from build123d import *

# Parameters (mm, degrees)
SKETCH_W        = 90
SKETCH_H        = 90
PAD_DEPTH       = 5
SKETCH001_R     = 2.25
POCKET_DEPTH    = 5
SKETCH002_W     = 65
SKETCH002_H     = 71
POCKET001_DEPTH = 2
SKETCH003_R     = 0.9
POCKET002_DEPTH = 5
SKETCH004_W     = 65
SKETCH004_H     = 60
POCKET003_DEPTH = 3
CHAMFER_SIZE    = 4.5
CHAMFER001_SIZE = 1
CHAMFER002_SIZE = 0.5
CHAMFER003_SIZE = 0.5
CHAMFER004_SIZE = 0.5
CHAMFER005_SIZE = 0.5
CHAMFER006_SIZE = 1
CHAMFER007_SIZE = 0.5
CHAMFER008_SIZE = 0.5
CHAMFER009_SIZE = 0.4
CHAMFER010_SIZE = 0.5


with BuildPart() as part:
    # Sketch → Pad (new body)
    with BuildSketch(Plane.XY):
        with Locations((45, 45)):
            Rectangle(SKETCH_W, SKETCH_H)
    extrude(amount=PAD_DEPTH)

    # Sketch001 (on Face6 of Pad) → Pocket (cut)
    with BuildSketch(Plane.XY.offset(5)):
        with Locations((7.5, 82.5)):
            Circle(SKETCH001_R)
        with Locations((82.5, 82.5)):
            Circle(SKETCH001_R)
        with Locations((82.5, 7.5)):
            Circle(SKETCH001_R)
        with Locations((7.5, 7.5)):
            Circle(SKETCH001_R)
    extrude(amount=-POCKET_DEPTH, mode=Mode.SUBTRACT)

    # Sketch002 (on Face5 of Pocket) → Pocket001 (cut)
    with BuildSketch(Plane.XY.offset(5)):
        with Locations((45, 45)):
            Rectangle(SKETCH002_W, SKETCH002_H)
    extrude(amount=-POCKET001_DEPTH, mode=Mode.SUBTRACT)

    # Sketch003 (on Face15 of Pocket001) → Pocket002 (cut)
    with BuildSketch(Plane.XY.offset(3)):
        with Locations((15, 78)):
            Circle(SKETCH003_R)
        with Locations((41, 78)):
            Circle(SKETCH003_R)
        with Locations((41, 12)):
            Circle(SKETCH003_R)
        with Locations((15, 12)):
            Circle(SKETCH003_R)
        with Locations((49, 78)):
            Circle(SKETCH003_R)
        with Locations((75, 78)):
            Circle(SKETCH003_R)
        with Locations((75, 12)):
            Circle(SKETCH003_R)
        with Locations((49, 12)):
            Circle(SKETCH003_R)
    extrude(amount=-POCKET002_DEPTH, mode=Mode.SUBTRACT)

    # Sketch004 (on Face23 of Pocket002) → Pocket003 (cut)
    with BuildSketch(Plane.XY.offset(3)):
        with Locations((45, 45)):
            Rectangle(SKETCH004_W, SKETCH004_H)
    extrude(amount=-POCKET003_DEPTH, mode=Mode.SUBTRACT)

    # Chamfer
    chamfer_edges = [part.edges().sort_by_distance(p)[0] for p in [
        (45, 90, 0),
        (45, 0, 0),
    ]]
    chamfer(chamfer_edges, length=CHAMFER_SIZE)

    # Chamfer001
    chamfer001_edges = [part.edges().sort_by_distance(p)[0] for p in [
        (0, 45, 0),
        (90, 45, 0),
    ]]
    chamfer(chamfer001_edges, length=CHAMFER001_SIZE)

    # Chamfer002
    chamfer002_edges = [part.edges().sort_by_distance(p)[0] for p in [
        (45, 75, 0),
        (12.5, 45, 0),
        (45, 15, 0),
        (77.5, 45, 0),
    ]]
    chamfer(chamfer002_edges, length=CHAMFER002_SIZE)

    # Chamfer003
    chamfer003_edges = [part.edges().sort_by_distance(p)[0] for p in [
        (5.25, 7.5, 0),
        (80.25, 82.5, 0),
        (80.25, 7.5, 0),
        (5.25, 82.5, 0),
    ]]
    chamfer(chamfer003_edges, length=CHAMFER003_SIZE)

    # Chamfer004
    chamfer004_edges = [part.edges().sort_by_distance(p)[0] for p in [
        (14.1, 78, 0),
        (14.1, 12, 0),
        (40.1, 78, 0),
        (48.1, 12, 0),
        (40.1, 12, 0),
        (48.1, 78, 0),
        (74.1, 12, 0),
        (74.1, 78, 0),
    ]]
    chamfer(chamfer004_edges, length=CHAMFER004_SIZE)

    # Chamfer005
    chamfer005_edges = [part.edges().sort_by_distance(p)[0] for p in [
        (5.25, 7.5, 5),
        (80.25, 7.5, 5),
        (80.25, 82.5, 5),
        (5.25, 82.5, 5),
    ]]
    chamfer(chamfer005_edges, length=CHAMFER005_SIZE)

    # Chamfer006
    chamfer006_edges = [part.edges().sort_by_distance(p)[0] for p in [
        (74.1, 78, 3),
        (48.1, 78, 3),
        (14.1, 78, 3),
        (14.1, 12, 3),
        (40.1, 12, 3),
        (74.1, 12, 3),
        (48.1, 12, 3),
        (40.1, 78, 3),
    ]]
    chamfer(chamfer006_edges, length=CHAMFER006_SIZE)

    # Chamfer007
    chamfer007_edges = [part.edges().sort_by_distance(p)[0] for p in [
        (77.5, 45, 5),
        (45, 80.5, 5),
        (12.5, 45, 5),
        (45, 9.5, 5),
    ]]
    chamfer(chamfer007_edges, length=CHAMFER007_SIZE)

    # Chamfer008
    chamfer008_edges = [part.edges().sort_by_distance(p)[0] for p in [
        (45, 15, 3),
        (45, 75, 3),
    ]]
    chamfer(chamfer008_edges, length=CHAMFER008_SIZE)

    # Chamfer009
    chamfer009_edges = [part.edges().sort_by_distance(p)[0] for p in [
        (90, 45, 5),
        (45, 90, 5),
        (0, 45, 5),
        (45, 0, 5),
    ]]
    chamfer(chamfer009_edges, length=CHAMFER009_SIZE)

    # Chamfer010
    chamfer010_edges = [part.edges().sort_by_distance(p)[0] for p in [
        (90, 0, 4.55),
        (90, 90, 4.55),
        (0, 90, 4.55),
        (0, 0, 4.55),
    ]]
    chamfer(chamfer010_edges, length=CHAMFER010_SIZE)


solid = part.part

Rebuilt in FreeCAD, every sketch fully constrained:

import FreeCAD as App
import Part
import Sketcher


def edges_at(feature, points):
    """Names of the edges that pass closest to the given points."""
    edges = feature.Shape.Edges
    near = lambda p: min(range(len(edges)), key=lambda i: edges[i].distToShape(Part.Vertex(*p))[0])
    return sorted({f"Edge{near(p) + 1}" for p in points})

doc = App.newDocument("Part")
params = doc.addObject("Spreadsheet::Sheet", "Params")
for row, (alias, value) in enumerate([
    ("sketch1_width", "90 mm"),
    ("pad1_length", "5 mm"),
    ("sketch2_diameter", "4.5 mm"),
    ("pocket1_length", "5 mm"),
    ("sketch3_width", "65 mm"),
    ("sketch3_height", "71 mm"),
    ("pocket2_length", "2 mm"),
    ("sketch4_diameter", "1.8 mm"),
    ("pocket3_length", "5 mm"),
    ("sketch5_width", "65 mm"),
    ("sketch5_height", "60 mm"),
    ("pocket4_length", "3 mm"),
    ("chamfer_size", "4.5 mm"),
    ("chamfer2_size", "1 mm"),
    ("chamfer3_size", "0.5 mm"),
    ("chamfer4_size", "0.5 mm"),
    ("chamfer5_size", "0.5 mm"),
    ("chamfer6_size", "0.5 mm"),
    ("chamfer7_size", "1 mm"),
    ("chamfer8_size", "0.5 mm"),
    ("chamfer9_size", "0.5 mm"),
    ("chamfer10_size", "0.4 mm"),
    ("chamfer11_size", "0.5 mm"),
], start=1):
    params.set(f"A{row}", alias)
    params.set(f"B{row}", "=" + value)
    params.setAlias(f"B{row}", alias)

body = doc.addObject("PartDesign::Body", "Body")

sketch1 = body.newObject("Sketcher::SketchObject", "Sketch")
sketch1.AttachmentSupport = (doc.getObject("XY_Plane"), [""])
sketch1.MapMode = "FlatFace"
sketch1.addGeometry([
    Part.LineSegment(App.Vector(0, 90, 0), App.Vector(0, 0, 0)),
    Part.LineSegment(App.Vector(0, 0, 0), App.Vector(90, 0, 0)),
    Part.LineSegment(App.Vector(90, 0, 0), App.Vector(90, 90, 0)),
    Part.LineSegment(App.Vector(90, 90, 0), App.Vector(0, 90, 0)),
], False)
sketch1.addConstraint([
    Sketcher.Constraint("Coincident", 0, 2, 1, 1),
    Sketcher.Constraint("Coincident", 1, 2, 2, 1),
    Sketcher.Constraint("Coincident", 2, 2, 3, 1),
    Sketcher.Constraint("Coincident", 3, 2, 0, 1),
    Sketcher.Constraint("Vertical", 0),
    Sketcher.Constraint("Horizontal", 1),
    Sketcher.Constraint("Vertical", 2),
    Sketcher.Constraint("Horizontal", 3),
    Sketcher.Constraint("Coincident", 0, 2, -1, 1),
    Sketcher.Constraint("Equal", 3, 0),
    Sketcher.Constraint("DistanceX", 1, 1, 1, 2, 90.0),
])
sketch1.setExpression("Constraints[10]", "Params.sketch1_width")
pad1 = body.newObject("PartDesign::Pad", "Pad")
pad1.Profile = sketch1
pad1.setExpression("Length", "Params.pad1_length")

sketch2 = body.newObject("Sketcher::SketchObject", "Sketch001")
sketch2.AttachmentSupport = (doc.getObject("XY_Plane"), [""])
sketch2.MapMode = "FlatFace"
sketch2.AttachmentOffset = App.Placement(App.Vector(0, 0, 5), App.Rotation())
sketch2.addGeometry([
    Part.Circle(App.Vector(7.5, 82.5, 0), App.Vector(0, 0, 1), 2.25),
    Part.Circle(App.Vector(82.5, 82.5, 0), App.Vector(0, 0, 1), 2.25),
    Part.Circle(App.Vector(82.5, 7.5, 0), App.Vector(0, 0, 1), 2.25),
    Part.Circle(App.Vector(7.5, 7.5, 0), App.Vector(0, 0, 1), 2.25),
], False)
sketch2.addConstraint([
    Sketcher.Constraint("Equal", 0, 1),
    Sketcher.Constraint("Equal", 1, 2),
    Sketcher.Constraint("Equal", 2, 3),
    Sketcher.Constraint("Horizontal", 0, 3, 1, 3),
    Sketcher.Constraint("Horizontal", 2, 3, 3, 3),
    Sketcher.Constraint("Vertical", 1, 3, 2, 3),
    Sketcher.Constraint("Vertical", 0, 3, 3, 3),
    Sketcher.Constraint("Diameter", 0, 4.5),
    Sketcher.Constraint("DistanceX", 0, 3, 1, 3, 75.0),
    Sketcher.Constraint("DistanceY", 2, 3, 1, 3, 75.0),
    Sketcher.Constraint("DistanceX", -1, 1, 0, 3, 7.5),
    Sketcher.Constraint("DistanceY", -1, 1, 0, 3, 82.5),
])
sketch2.setExpression("Constraints[7]", "Params.sketch2_diameter")
pocket1 = body.newObject("PartDesign::Pocket", "Pocket")
pocket1.Profile = sketch2
pocket1.setExpression("Length", "Params.pocket1_length")

sketch3 = body.newObject("Sketcher::SketchObject", "Sketch002")
sketch3.AttachmentSupport = (doc.getObject("XY_Plane"), [""])
sketch3.MapMode = "FlatFace"
sketch3.AttachmentOffset = App.Placement(App.Vector(0, 0, 5), App.Rotation())
sketch3.addGeometry([
    Part.LineSegment(App.Vector(12.5, 80.5, 0), App.Vector(12.5, 9.5, 0)),
    Part.LineSegment(App.Vector(12.5, 9.5, 0), App.Vector(77.5, 9.5, 0)),
    Part.LineSegment(App.Vector(77.5, 9.5, 0), App.Vector(77.5, 80.5, 0)),
    Part.LineSegment(App.Vector(77.5, 80.5, 0), App.Vector(12.5, 80.5, 0)),
], False)
sketch3.addConstraint([
    Sketcher.Constraint("Coincident", 0, 2, 1, 1),
    Sketcher.Constraint("Coincident", 1, 2, 2, 1),
    Sketcher.Constraint("Coincident", 2, 2, 3, 1),
    Sketcher.Constraint("Coincident", 3, 2, 0, 1),
    Sketcher.Constraint("Vertical", 0),
    Sketcher.Constraint("Horizontal", 1),
    Sketcher.Constraint("Vertical", 2),
    Sketcher.Constraint("Horizontal", 3),
    Sketcher.Constraint("DistanceX", 1, 1, 1, 2, 65.0),
    Sketcher.Constraint("DistanceY", 0, 2, 0, 1, 71.0),
    Sketcher.Constraint("DistanceX", -1, 1, 0, 2, 12.5),
    Sketcher.Constraint("DistanceY", -1, 1, 0, 2, 9.5),
])
sketch3.setExpression("Constraints[8]", "Params.sketch3_width")
sketch3.setExpression("Constraints[9]", "Params.sketch3_height")
pocket2 = body.newObject("PartDesign::Pocket", "Pocket001")
pocket2.Profile = sketch3
pocket2.setExpression("Length", "Params.pocket2_length")

sketch4 = body.newObject("Sketcher::SketchObject", "Sketch003")
sketch4.AttachmentSupport = (doc.getObject("XY_Plane"), [""])
sketch4.MapMode = "FlatFace"
sketch4.AttachmentOffset = App.Placement(App.Vector(0, 0, 3), App.Rotation())
sketch4.addGeometry([
    Part.Circle(App.Vector(15, 78, 0), App.Vector(0, 0, 1), 0.9),
    Part.Circle(App.Vector(41, 78, 0), App.Vector(0, 0, 1), 0.9),
    Part.Circle(App.Vector(41, 12, 0), App.Vector(0, 0, 1), 0.9),
    Part.Circle(App.Vector(15, 12, 0), App.Vector(0, 0, 1), 0.9),
    Part.Circle(App.Vector(49, 78, 0), App.Vector(0, 0, 1), 0.9),
    Part.Circle(App.Vector(75, 78, 0), App.Vector(0, 0, 1), 0.9),
    Part.Circle(App.Vector(75, 12, 0), App.Vector(0, 0, 1), 0.9),
    Part.Circle(App.Vector(49, 12, 0), App.Vector(0, 0, 1), 0.9),
], False)
sketch4.addConstraint([
    Sketcher.Constraint("Equal", 0, 1),
    Sketcher.Constraint("Equal", 1, 2),
    Sketcher.Constraint("Equal", 2, 3),
    Sketcher.Constraint("Equal", 3, 4),
    Sketcher.Constraint("Equal", 4, 5),
    Sketcher.Constraint("Equal", 5, 6),
    Sketcher.Constraint("Equal", 6, 7),
    Sketcher.Constraint("Horizontal", 0, 3, 1, 3),
    Sketcher.Constraint("Horizontal", 2, 3, 3, 3),
    Sketcher.Constraint("Horizontal", 1, 3, 4, 3),
    Sketcher.Constraint("Horizontal", 4, 3, 5, 3),
    Sketcher.Constraint("Horizontal", 3, 3, 6, 3),
    Sketcher.Constraint("Horizontal", 6, 3, 7, 3),
    Sketcher.Constraint("Vertical", 1, 3, 2, 3),
    Sketcher.Constraint("Vertical", 0, 3, 3, 3),
    Sketcher.Constraint("Vertical", 5, 3, 6, 3),
    Sketcher.Constraint("Vertical", 4, 3, 7, 3),
    Sketcher.Constraint("Diameter", 0, 1.8),
    Sketcher.Constraint("DistanceX", -1, 1, 0, 3, 15.0),
    Sketcher.Constraint("DistanceY", -1, 1, 0, 3, 78.0),
    Sketcher.Constraint("DistanceX", -1, 1, 1, 3, 41.0),
    Sketcher.Constraint("DistanceY", -1, 1, 2, 3, 12.0),
    Sketcher.Constraint("DistanceX", -1, 1, 4, 3, 49.0),
    Sketcher.Constraint("DistanceX", -1, 1, 5, 3, 75.0),
])
sketch4.setExpression("Constraints[17]", "Params.sketch4_diameter")
pocket3 = body.newObject("PartDesign::Pocket", "Pocket002")
pocket3.Profile = sketch4
pocket3.setExpression("Length", "Params.pocket3_length")

sketch5 = body.newObject("Sketcher::SketchObject", "Sketch004")
sketch5.AttachmentSupport = (doc.getObject("XY_Plane"), [""])
sketch5.MapMode = "FlatFace"
sketch5.AttachmentOffset = App.Placement(App.Vector(0, 0, 3), App.Rotation())
sketch5.addGeometry([
    Part.LineSegment(App.Vector(12.5, 75, 0), App.Vector(12.5, 15, 0)),
    Part.LineSegment(App.Vector(12.5, 15, 0), App.Vector(77.5, 15, 0)),
    Part.LineSegment(App.Vector(77.5, 15, 0), App.Vector(77.5, 75, 0)),
    Part.LineSegment(App.Vector(77.5, 75, 0), App.Vector(12.5, 75, 0)),
], False)
sketch5.addConstraint([
    Sketcher.Constraint("Coincident", 0, 2, 1, 1),
    Sketcher.Constraint("Coincident", 1, 2, 2, 1),
    Sketcher.Constraint("Coincident", 2, 2, 3, 1),
    Sketcher.Constraint("Coincident", 3, 2, 0, 1),
    Sketcher.Constraint("Vertical", 0),
    Sketcher.Constraint("Horizontal", 1),
    Sketcher.Constraint("Vertical", 2),
    Sketcher.Constraint("Horizontal", 3),
    Sketcher.Constraint("DistanceX", 1, 1, 1, 2, 65.0),
    Sketcher.Constraint("DistanceY", 0, 2, 0, 1, 60.0),
    Sketcher.Constraint("DistanceY", -1, 1, 0, 2, 15.0),
    Sketcher.Constraint("DistanceX", -1, 1, 0, 2, 12.5),
])
sketch5.setExpression("Constraints[8]", "Params.sketch5_width")
sketch5.setExpression("Constraints[9]", "Params.sketch5_height")
pocket4 = body.newObject("PartDesign::Pocket", "Pocket003")
pocket4.Profile = sketch5
pocket4.setExpression("Length", "Params.pocket4_length")
doc.recompute()

chamfer = body.newObject("PartDesign::Chamfer", "Chamfer")
chamfer.Base = (pocket4, edges_at(pocket4, [(45, 90, 0), (45, 0, 0)]))
chamfer.setExpression("Size", "Params.chamfer_size")
doc.recompute()

chamfer2 = body.newObject("PartDesign::Chamfer", "Chamfer001")
chamfer2.Base = (chamfer, edges_at(chamfer, [(0, 45, 0), (90, 45, 0)]))
chamfer2.setExpression("Size", "Params.chamfer2_size")
doc.recompute()

chamfer3 = body.newObject("PartDesign::Chamfer", "Chamfer002")
chamfer3.Base = (chamfer2, edges_at(chamfer2, [
    (45, 75, 0),
    (12.5, 45, 0),
    (45, 15, 0),
    (77.5, 45, 0),
]))
chamfer3.setExpression("Size", "Params.chamfer3_size")
doc.recompute()

chamfer4 = body.newObject("PartDesign::Chamfer", "Chamfer003")
chamfer4.Base = (chamfer3, edges_at(chamfer3, [
    (5.25, 7.5, 0),
    (80.25, 82.5, 0),
    (80.25, 7.5, 0),
    (5.25, 82.5, 0),
]))
chamfer4.setExpression("Size", "Params.chamfer4_size")
doc.recompute()

chamfer5 = body.newObject("PartDesign::Chamfer", "Chamfer004")
chamfer5.Base = (chamfer4, edges_at(chamfer4, [
    (14.1, 78, 0),
    (14.1, 12, 0),
    (40.1, 78, 0),
    (48.1, 12, 0),
    (40.1, 12, 0),
    (48.1, 78, 0),
    (74.1, 12, 0),
    (74.1, 78, 0),
]))
chamfer5.setExpression("Size", "Params.chamfer5_size")
doc.recompute()

chamfer6 = body.newObject("PartDesign::Chamfer", "Chamfer005")
chamfer6.Base = (chamfer5, edges_at(chamfer5, [
    (5.25, 7.5, 5),
    (80.25, 7.5, 5),
    (80.25, 82.5, 5),
    (5.25, 82.5, 5),
]))
chamfer6.setExpression("Size", "Params.chamfer6_size")
doc.recompute()

chamfer7 = body.newObject("PartDesign::Chamfer", "Chamfer006")
chamfer7.Base = (chamfer6, edges_at(chamfer6, [
    (74.1, 78, 3),
    (48.1, 78, 3),
    (14.1, 78, 3),
    (14.1, 12, 3),
    (40.1, 12, 3),
    (74.1, 12, 3),
    (48.1, 12, 3),
    (40.1, 78, 3),
]))
chamfer7.setExpression("Size", "Params.chamfer7_size")
doc.recompute()

chamfer8 = body.newObject("PartDesign::Chamfer", "Chamfer007")
chamfer8.Base = (chamfer7, edges_at(chamfer7, [
    (77.5, 45, 5),
    (45, 80.5, 5),
    (12.5, 45, 5),
    (45, 9.5, 5),
]))
chamfer8.setExpression("Size", "Params.chamfer8_size")
doc.recompute()

chamfer9 = body.newObject("PartDesign::Chamfer", "Chamfer008")
chamfer9.Base = (chamfer8, edges_at(chamfer8, [(45, 15, 3), (45, 75, 3)]))
chamfer9.setExpression("Size", "Params.chamfer9_size")
doc.recompute()

chamfer10 = body.newObject("PartDesign::Chamfer", "Chamfer009")
chamfer10.Base = (chamfer9, edges_at(chamfer9, [
    (90, 45, 5),
    (45, 90, 5),
    (0, 45, 5),
    (45, 0, 5),
]))
chamfer10.setExpression("Size", "Params.chamfer10_size")
doc.recompute()

chamfer11 = body.newObject("PartDesign::Chamfer", "Chamfer010")
chamfer11.Base = (chamfer10, edges_at(chamfer10, [
    (90, 0, 4.55),
    (90, 90, 4.55),
    (0, 90, 4.55),
    (0, 0, 4.55),
]))
chamfer11.setExpression("Size", "Params.chamfer11_size")

doc.recompute()
